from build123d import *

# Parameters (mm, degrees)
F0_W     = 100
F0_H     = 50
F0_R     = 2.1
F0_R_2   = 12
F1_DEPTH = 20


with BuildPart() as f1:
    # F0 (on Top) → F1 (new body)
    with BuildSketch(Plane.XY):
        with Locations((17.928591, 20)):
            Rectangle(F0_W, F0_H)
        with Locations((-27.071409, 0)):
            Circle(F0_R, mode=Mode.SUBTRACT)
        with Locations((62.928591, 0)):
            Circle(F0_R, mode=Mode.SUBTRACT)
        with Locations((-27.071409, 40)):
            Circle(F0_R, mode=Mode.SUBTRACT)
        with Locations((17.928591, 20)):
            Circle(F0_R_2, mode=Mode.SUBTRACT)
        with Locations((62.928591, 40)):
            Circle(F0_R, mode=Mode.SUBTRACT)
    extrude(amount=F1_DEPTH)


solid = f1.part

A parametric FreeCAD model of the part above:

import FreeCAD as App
import Part
import Sketcher
from FreeCAD import Vector


def add_polygon(sketch, points):
    """Adds a closed chain of lines whose ends are joined by coincident constraints."""
    first, n = sketch.GeometryCount, len(points)
    for a, b in zip(points, points[1:] + points[:1]):
        sketch.addGeometry(Part.LineSegment(App.Vector(*a, 0), App.Vector(*b, 0)), False)
    for i in range(n):
        sketch.addConstraint(Sketcher.Constraint("Coincident", first + i, 2, first + (i + 1) % n, 1))

doc = App.newDocument("Part")
body = doc.addObject("PartDesign::Body", "Body")

sketch1 = body.newObject("Sketcher::SketchObject", "Sketch")
sketch1.AttachmentSupport = (doc.getObject("XY_Plane"), [""])
sketch1.MapMode = "FlatFace"
add_polygon(sketch1, [(-32.1, 45), (-32.1, -5), (67.9, -5), (67.9, 45)])
sketch1.addGeometry(Part.Circle(Vector(-27.1, 0, 0), Vector(0, 0, 1), 2.1), False)
sketch1.addGeometry(Part.Circle(Vector(62.9, 0, 0), Vector(0, 0, 1), 2.1), False)
sketch1.addGeometry(Part.Circle(Vector(-27.1, 40, 0), Vector(0, 0, 1), 2.1), False)
sketch1.addGeometry(Part.Circle(Vector(17.9, 20, 0), Vector(0, 0, 1), 12), False)
sketch1.addGeometry(Part.Circle(Vector(62.9, 40, 0), Vector(0, 0, 1), 2.1), False)
sketch1.addConstraint([
    Sketcher.Constraint("Vertical", 0),
    Sketcher.Constraint("Horizontal", 1),
    Sketcher.Constraint("Vertical", 2),
    Sketcher.Constraint("Horizontal", 3),
    Sketcher.Constraint("Equal", 4, 5),
    Sketcher.Constraint("Equal", 5, 6),
    Sketcher.Constraint("Equal", 6, 8),
    Sketcher.Constraint("PointOnObject", 4, 3, -1),
    Sketcher.Constraint("PointOnObject", 5, 3, -1),
    Sketcher.Constraint("Horizontal", 6, 3, 8, 3),
    Sketcher.Constraint("Vertical", 4, 3, 6, 3),
    Sketcher.Constraint("Vertical", 5, 3, 8, 3),
    Sketcher.Constraint("Diameter", 7, 24.0),
    Sketcher.Constraint("Diameter", 4, 4.2),
    Sketcher.Constraint("DistanceX", 1, 1, 1, 2, 100.0),
    Sketcher.Constraint("DistanceY", 0, 2, 0, 1, 50.0),
    Sketcher.Constraint("DistanceY", -1, 1, 6, 3, 40.0),
    Sketcher.Constraint("DistanceY", -1, 1, 7, 3, 20.0),
    Sketcher.Constraint("DistanceY", 0, 2, -1, 1, 5.0),
    Sketcher.Constraint("DistanceX", 4, 3, 5, 3, 90.0),
    Sketcher.Constraint("DistanceX", 4, 3, 7, 3, 45.0),
    Sketcher.Constraint("DistanceX", 0, 2, 4, 3, 5.0),
    Sketcher.Constraint("DistanceX", 4, 3, -1, 1, 27.071409),
])
pad1 = body.newObject("PartDesign::Pad", "Pad")
pad1.Profile = sketch1
pad1.Length = 20

doc.recompute()
